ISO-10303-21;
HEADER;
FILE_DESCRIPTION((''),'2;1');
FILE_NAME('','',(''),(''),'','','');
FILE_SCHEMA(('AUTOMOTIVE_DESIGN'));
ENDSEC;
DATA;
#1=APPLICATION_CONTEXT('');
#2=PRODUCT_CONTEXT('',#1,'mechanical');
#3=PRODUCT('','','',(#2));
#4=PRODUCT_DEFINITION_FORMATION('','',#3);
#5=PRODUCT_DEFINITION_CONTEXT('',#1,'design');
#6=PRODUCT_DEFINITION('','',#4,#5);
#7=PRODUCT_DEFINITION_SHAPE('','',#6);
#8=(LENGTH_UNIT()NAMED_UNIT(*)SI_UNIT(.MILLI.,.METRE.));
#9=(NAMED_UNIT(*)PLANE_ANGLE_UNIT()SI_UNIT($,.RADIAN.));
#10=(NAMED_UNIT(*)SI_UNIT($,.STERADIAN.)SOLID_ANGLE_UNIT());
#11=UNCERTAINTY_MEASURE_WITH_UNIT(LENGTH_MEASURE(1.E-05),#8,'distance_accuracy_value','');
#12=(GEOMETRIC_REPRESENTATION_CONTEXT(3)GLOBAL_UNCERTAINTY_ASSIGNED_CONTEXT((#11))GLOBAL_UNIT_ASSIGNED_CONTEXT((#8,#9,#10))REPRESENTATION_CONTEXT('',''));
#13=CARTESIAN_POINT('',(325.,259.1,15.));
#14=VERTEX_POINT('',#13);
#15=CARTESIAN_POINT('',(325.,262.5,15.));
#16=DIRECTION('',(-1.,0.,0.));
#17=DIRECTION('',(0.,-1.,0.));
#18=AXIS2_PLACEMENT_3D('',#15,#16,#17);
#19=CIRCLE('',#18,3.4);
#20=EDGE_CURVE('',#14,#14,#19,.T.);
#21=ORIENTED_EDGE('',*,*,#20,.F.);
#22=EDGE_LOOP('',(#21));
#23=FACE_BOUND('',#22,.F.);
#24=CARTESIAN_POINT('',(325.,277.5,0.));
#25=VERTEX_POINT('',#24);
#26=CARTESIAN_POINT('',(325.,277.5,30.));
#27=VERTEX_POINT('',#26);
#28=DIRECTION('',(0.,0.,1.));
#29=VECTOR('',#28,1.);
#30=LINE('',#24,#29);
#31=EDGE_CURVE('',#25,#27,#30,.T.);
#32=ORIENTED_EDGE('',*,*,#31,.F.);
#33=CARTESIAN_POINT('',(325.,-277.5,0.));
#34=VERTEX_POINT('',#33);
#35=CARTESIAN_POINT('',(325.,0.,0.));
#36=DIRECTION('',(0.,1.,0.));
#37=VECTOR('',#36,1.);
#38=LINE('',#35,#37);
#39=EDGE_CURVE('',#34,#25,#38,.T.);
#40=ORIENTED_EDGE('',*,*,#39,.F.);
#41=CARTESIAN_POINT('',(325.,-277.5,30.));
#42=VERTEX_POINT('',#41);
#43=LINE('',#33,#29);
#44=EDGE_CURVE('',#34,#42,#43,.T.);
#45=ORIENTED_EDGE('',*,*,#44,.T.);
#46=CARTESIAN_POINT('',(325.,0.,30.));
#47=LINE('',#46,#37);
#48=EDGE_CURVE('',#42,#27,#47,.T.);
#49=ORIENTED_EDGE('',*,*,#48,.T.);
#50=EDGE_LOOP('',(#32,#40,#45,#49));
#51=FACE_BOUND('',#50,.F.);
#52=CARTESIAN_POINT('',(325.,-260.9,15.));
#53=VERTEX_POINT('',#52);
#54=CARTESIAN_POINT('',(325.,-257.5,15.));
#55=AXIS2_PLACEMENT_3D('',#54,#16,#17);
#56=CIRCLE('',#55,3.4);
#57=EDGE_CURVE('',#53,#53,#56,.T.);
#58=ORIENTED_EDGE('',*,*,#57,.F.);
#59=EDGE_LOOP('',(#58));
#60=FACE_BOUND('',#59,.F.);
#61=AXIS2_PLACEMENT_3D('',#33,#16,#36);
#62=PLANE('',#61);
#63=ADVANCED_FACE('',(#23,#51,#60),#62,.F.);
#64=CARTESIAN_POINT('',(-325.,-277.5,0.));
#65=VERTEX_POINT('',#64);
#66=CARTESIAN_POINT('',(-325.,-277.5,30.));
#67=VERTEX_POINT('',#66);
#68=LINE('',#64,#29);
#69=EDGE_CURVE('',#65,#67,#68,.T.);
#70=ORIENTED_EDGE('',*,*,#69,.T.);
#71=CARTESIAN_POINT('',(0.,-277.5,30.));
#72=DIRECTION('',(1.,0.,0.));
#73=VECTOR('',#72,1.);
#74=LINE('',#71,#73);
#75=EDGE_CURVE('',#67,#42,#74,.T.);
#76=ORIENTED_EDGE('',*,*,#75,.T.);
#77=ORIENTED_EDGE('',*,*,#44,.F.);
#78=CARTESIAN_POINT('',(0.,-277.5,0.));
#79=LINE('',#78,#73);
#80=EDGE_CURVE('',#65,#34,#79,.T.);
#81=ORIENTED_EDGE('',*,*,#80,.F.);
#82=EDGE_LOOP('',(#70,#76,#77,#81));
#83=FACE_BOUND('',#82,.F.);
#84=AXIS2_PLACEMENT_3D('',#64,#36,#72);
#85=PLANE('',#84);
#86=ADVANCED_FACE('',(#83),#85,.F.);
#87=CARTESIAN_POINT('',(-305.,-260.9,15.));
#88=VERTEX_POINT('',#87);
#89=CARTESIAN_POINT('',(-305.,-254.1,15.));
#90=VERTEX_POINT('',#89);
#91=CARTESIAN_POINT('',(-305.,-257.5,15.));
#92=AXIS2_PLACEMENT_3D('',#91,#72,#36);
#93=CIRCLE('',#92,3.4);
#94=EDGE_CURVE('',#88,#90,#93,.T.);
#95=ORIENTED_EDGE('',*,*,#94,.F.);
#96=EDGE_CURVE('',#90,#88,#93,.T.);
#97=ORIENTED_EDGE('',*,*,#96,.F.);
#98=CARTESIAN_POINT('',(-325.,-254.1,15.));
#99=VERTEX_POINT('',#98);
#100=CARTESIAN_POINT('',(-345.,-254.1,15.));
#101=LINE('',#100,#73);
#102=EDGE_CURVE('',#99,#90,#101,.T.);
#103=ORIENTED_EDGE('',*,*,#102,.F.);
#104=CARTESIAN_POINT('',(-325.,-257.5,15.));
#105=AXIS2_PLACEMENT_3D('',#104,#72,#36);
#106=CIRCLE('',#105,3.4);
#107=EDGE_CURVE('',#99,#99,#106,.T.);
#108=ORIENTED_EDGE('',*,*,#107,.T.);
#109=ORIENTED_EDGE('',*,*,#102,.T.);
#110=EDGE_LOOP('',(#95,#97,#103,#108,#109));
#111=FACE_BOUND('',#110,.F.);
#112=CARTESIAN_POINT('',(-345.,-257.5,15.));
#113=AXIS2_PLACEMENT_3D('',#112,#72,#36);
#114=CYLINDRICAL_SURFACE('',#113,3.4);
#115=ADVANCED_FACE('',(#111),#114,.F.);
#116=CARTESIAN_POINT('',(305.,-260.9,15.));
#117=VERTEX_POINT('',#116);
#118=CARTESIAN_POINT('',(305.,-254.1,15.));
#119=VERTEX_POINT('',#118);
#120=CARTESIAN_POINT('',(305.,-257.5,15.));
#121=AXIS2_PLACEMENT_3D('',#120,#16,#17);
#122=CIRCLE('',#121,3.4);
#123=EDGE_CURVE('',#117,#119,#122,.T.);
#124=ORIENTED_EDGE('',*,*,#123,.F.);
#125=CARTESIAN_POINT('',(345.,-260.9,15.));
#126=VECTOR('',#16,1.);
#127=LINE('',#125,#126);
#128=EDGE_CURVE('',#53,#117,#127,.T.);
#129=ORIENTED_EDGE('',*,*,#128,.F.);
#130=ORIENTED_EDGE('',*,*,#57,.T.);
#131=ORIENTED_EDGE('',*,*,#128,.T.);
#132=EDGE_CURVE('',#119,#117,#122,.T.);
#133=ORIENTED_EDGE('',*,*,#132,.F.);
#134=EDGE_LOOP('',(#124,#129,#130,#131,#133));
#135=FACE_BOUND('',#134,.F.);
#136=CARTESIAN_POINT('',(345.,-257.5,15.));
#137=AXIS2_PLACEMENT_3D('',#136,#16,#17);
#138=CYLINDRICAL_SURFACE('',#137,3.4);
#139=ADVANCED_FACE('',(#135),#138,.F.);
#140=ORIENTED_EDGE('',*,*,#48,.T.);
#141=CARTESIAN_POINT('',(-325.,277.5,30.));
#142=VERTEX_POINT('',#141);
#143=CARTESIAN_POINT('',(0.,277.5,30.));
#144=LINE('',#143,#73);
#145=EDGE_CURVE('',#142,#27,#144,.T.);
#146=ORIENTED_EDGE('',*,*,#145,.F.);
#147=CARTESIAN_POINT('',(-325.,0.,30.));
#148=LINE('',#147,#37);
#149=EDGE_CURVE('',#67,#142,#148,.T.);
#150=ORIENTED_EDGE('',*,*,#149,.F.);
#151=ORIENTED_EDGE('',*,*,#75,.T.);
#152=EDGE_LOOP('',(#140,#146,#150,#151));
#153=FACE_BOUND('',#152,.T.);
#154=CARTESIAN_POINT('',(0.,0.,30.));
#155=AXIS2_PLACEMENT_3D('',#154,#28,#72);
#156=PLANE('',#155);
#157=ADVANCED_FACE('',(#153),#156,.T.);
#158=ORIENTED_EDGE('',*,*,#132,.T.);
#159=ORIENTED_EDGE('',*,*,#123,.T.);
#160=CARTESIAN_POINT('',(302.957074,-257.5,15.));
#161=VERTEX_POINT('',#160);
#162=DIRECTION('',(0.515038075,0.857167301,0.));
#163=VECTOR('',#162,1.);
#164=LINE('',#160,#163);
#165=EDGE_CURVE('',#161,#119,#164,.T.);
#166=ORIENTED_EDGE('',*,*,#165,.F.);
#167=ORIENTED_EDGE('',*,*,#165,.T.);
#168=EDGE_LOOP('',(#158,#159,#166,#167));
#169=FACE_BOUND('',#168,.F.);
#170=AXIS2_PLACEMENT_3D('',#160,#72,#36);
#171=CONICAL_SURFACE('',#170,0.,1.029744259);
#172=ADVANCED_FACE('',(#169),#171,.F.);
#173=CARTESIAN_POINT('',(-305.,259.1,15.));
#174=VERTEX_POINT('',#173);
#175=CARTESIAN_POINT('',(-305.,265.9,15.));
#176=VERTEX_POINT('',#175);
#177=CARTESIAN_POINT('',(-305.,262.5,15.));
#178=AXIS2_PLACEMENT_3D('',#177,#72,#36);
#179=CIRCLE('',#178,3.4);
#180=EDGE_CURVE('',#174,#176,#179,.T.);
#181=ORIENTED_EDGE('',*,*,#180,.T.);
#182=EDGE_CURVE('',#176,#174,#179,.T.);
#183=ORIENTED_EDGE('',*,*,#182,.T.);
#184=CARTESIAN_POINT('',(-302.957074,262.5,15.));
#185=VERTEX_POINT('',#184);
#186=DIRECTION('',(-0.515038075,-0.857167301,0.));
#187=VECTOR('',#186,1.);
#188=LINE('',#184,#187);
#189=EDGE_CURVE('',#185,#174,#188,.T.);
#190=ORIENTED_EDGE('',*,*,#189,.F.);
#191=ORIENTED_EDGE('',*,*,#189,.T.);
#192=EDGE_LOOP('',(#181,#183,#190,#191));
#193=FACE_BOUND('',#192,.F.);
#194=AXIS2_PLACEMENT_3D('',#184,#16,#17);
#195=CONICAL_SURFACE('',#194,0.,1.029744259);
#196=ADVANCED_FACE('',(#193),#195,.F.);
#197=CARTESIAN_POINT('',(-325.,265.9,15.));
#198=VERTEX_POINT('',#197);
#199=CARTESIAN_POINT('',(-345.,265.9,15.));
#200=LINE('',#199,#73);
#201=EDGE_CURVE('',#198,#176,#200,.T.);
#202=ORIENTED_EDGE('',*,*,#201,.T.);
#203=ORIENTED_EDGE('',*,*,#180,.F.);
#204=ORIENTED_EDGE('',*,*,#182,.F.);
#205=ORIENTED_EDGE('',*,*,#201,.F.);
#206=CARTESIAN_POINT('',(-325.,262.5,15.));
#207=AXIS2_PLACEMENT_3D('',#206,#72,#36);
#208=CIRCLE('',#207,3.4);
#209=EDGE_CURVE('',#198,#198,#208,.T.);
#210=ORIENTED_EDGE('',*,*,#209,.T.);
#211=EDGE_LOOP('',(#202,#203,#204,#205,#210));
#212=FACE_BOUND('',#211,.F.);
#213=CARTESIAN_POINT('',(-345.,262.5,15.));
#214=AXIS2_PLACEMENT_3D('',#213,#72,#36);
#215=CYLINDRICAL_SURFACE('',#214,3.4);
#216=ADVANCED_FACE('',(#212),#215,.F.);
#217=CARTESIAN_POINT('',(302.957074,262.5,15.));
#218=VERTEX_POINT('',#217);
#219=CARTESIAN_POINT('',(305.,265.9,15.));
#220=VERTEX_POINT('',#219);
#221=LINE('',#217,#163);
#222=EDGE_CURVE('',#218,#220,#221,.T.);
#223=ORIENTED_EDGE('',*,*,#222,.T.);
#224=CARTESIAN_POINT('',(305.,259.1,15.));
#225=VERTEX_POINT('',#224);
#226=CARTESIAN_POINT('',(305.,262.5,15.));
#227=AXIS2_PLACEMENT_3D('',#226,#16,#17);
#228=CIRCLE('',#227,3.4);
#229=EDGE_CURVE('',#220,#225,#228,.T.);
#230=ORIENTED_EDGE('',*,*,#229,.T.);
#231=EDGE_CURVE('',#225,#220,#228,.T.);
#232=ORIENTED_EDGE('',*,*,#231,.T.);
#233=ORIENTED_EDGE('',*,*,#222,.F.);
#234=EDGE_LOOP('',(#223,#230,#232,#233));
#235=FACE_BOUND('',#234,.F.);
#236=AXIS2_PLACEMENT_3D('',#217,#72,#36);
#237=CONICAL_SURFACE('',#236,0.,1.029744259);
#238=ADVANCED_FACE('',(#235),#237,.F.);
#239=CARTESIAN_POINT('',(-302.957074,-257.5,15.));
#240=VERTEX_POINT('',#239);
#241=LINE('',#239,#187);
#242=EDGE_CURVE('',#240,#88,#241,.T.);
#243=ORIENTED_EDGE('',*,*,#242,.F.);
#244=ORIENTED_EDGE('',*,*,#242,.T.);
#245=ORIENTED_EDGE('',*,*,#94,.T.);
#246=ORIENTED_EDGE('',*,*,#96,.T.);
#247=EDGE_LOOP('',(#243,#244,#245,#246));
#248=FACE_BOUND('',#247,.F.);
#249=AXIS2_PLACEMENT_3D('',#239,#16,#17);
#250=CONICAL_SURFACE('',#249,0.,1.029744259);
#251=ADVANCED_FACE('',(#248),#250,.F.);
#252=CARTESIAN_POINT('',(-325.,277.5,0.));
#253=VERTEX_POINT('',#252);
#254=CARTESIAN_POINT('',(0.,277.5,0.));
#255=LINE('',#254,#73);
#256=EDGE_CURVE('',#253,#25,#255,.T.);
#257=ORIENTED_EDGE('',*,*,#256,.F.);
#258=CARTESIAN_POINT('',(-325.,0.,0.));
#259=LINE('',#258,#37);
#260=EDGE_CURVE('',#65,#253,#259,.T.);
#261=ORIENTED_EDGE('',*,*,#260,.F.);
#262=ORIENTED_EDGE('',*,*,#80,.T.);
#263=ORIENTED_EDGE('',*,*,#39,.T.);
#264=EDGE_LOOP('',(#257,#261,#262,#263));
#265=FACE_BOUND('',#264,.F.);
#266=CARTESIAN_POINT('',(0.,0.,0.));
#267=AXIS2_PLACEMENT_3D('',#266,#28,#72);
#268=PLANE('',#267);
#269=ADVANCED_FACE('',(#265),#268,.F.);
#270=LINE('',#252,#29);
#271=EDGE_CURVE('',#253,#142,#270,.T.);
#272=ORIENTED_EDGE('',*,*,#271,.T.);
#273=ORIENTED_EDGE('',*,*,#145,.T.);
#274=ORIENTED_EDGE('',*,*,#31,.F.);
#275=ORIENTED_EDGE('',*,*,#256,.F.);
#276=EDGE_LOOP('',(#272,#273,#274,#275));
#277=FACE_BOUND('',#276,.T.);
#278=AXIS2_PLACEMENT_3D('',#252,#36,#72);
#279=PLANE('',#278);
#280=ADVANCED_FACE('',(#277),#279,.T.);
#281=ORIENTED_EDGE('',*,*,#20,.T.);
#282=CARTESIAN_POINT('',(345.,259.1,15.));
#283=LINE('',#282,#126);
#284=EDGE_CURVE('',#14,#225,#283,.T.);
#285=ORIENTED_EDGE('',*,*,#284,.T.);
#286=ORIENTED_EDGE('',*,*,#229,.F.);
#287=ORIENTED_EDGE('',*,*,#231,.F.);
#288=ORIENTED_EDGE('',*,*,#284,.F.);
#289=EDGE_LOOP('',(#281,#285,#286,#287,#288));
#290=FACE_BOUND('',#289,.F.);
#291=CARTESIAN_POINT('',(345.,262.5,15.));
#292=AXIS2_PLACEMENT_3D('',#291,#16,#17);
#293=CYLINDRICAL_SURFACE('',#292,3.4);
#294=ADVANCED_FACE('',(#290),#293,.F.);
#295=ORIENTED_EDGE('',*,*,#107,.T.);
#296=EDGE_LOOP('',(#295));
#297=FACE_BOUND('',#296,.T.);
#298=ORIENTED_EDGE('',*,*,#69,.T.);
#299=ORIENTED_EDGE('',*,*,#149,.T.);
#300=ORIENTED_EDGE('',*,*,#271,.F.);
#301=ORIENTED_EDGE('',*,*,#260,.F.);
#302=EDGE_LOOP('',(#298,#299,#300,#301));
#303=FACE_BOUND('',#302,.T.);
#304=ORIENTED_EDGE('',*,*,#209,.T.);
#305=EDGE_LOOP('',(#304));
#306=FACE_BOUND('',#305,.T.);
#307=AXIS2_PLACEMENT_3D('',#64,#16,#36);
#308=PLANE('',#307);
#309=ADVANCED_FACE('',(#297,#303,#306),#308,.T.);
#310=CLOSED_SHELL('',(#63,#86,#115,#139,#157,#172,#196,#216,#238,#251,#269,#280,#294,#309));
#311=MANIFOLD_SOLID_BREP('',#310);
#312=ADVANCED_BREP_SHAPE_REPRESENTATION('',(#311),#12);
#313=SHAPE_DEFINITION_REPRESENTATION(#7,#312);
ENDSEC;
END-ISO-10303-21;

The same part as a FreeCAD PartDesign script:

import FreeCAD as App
import Part
import Sketcher
from FreeCAD import Vector


def add_polygon(sketch, points):
    """Adds a closed chain of lines whose ends are joined by coincident constraints."""
    first, n = sketch.GeometryCount, len(points)
    for a, b in zip(points, points[1:] + points[:1]):
        sketch.addGeometry(Part.LineSegment(App.Vector(*a, 0), App.Vector(*b, 0)), False)
    for i in range(n):
        sketch.addConstraint(Sketcher.Constraint("Coincident", first + i, 2, first + (i + 1) % n, 1))

doc = App.newDocument("Part")
body = doc.addObject("PartDesign::Body", "Body")

# Sketch on XY plane
sketch1 = body.newObject("Sketcher::SketchObject", "Sketch")
sketch1.AttachmentSupport = (doc.getObject("XY_Plane"), [""])
sketch1.MapMode = "FlatFace"
add_polygon(sketch1, [(-325, 278), (-325, -278), (325, -278), (325, 278)])  # lines 0-3
sketch1.addConstraint([
    Sketcher.Constraint("Vertical", 0),
    Sketcher.Constraint("Horizontal", 1),
    Sketcher.Constraint("Vertical", 2),
    Sketcher.Constraint("Horizontal", 3),
    Sketcher.Constraint("Symmetric", 0, 2, 2, 2, -1, 1),
    Sketcher.Constraint("DistanceX", 1, 1, 1, 2, 650.0),
    Sketcher.Constraint("DistanceY", 0, 2, 0, 1, 555.0),
])
pad1 = body.newObject("PartDesign::Pad", "Pad")
pad1.Profile = sketch1
pad1.Length = 30

# Sketch on YZ plane
sketch2 = body.newObject("Sketcher::SketchObject", "Sketch001")
sketch2.AttachmentSupport = (doc.getObject("YZ_Plane"), [""])
sketch2.MapMode = "FlatFace"
sketch2.AttachmentOffset = App.Placement(Vector(0, 0, -325), App.Rotation())
sketch2.addGeometry([
    Part.Circle(Vector(-257.5, 15, 0), Vector(0, 0, 1), 3.4),
    Part.Circle(Vector(262.5, 15, 0), Vector(0, 0, 1), 3.4),
], False)
sketch2.addConstraint([
    Sketcher.Constraint("Equal", 0, 1),
    Sketcher.Constraint("Horizontal", 0, 3, 1, 3),
    Sketcher.Constraint("Diameter", 0, 6.8),
    Sketcher.Constraint("DistanceY", -1, 1, 0, 3, 15.0),
    Sketcher.Constraint("DistanceX", 0, 3, 1, 3, 520.0),
    Sketcher.Constraint("DistanceX", 0, 3, -1, 1, 257.5),
])
doc.recompute()
hole = body.newObject("PartDesign::Hole", "Hole")
hole.Profile = sketch2
hole.ThreadType = "None"
hole.Diameter = 6.8
hole.DepthType = "Dimension"
hole.Depth = 20
hole.DrillPoint = "Angled"
hole.DrillPointAngle = 118
hole.Reversed = True

# Sketch on YZ plane
sketch3 = body.newObject("Sketcher::SketchObject", "Sketch002")
sketch3.AttachmentSupport = (doc.getObject("YZ_Plane"), [""])
sketch3.MapMode = "FlatFace"
sketch3.AttachmentOffset = App.Placement(Vector(0, 0, 325), App.Rotation())
sketch3.addGeometry([
    Part.Circle(Vector(262.5, 15, 0), Vector(0, 0, 1), 3.4),
    Part.Circle(Vector(-257.5, 15, 0), Vector(0, 0, 1), 3.4),
], False)
sketch3.addConstraint([
    Sketcher.Constraint("Equal", 0, 1),
    Sketcher.Constraint("Horizontal", 0, 3, 1, 3),
    Sketcher.Constraint("Diameter", 0, 6.8),
    Sketcher.Constraint("DistanceY", -1, 1, 0, 3, 15.0),
    Sketcher.Constraint("DistanceX", 1, 3, 0, 3, 520.0),
    Sketcher.Constraint("DistanceX", -1, 1, 0, 3, 262.5),
])
doc.recompute()
hole2 = body.newObject("PartDesign::Hole", "Hole001")
hole2.Profile = sketch3
hole2.ThreadType = "None"
hole2.Diameter = 6.8
hole2.DepthType = "Dimension"
hole2.Depth = 20
hole2.DrillPoint = "Angled"
hole2.DrillPointAngle = 118

doc.recompute()
